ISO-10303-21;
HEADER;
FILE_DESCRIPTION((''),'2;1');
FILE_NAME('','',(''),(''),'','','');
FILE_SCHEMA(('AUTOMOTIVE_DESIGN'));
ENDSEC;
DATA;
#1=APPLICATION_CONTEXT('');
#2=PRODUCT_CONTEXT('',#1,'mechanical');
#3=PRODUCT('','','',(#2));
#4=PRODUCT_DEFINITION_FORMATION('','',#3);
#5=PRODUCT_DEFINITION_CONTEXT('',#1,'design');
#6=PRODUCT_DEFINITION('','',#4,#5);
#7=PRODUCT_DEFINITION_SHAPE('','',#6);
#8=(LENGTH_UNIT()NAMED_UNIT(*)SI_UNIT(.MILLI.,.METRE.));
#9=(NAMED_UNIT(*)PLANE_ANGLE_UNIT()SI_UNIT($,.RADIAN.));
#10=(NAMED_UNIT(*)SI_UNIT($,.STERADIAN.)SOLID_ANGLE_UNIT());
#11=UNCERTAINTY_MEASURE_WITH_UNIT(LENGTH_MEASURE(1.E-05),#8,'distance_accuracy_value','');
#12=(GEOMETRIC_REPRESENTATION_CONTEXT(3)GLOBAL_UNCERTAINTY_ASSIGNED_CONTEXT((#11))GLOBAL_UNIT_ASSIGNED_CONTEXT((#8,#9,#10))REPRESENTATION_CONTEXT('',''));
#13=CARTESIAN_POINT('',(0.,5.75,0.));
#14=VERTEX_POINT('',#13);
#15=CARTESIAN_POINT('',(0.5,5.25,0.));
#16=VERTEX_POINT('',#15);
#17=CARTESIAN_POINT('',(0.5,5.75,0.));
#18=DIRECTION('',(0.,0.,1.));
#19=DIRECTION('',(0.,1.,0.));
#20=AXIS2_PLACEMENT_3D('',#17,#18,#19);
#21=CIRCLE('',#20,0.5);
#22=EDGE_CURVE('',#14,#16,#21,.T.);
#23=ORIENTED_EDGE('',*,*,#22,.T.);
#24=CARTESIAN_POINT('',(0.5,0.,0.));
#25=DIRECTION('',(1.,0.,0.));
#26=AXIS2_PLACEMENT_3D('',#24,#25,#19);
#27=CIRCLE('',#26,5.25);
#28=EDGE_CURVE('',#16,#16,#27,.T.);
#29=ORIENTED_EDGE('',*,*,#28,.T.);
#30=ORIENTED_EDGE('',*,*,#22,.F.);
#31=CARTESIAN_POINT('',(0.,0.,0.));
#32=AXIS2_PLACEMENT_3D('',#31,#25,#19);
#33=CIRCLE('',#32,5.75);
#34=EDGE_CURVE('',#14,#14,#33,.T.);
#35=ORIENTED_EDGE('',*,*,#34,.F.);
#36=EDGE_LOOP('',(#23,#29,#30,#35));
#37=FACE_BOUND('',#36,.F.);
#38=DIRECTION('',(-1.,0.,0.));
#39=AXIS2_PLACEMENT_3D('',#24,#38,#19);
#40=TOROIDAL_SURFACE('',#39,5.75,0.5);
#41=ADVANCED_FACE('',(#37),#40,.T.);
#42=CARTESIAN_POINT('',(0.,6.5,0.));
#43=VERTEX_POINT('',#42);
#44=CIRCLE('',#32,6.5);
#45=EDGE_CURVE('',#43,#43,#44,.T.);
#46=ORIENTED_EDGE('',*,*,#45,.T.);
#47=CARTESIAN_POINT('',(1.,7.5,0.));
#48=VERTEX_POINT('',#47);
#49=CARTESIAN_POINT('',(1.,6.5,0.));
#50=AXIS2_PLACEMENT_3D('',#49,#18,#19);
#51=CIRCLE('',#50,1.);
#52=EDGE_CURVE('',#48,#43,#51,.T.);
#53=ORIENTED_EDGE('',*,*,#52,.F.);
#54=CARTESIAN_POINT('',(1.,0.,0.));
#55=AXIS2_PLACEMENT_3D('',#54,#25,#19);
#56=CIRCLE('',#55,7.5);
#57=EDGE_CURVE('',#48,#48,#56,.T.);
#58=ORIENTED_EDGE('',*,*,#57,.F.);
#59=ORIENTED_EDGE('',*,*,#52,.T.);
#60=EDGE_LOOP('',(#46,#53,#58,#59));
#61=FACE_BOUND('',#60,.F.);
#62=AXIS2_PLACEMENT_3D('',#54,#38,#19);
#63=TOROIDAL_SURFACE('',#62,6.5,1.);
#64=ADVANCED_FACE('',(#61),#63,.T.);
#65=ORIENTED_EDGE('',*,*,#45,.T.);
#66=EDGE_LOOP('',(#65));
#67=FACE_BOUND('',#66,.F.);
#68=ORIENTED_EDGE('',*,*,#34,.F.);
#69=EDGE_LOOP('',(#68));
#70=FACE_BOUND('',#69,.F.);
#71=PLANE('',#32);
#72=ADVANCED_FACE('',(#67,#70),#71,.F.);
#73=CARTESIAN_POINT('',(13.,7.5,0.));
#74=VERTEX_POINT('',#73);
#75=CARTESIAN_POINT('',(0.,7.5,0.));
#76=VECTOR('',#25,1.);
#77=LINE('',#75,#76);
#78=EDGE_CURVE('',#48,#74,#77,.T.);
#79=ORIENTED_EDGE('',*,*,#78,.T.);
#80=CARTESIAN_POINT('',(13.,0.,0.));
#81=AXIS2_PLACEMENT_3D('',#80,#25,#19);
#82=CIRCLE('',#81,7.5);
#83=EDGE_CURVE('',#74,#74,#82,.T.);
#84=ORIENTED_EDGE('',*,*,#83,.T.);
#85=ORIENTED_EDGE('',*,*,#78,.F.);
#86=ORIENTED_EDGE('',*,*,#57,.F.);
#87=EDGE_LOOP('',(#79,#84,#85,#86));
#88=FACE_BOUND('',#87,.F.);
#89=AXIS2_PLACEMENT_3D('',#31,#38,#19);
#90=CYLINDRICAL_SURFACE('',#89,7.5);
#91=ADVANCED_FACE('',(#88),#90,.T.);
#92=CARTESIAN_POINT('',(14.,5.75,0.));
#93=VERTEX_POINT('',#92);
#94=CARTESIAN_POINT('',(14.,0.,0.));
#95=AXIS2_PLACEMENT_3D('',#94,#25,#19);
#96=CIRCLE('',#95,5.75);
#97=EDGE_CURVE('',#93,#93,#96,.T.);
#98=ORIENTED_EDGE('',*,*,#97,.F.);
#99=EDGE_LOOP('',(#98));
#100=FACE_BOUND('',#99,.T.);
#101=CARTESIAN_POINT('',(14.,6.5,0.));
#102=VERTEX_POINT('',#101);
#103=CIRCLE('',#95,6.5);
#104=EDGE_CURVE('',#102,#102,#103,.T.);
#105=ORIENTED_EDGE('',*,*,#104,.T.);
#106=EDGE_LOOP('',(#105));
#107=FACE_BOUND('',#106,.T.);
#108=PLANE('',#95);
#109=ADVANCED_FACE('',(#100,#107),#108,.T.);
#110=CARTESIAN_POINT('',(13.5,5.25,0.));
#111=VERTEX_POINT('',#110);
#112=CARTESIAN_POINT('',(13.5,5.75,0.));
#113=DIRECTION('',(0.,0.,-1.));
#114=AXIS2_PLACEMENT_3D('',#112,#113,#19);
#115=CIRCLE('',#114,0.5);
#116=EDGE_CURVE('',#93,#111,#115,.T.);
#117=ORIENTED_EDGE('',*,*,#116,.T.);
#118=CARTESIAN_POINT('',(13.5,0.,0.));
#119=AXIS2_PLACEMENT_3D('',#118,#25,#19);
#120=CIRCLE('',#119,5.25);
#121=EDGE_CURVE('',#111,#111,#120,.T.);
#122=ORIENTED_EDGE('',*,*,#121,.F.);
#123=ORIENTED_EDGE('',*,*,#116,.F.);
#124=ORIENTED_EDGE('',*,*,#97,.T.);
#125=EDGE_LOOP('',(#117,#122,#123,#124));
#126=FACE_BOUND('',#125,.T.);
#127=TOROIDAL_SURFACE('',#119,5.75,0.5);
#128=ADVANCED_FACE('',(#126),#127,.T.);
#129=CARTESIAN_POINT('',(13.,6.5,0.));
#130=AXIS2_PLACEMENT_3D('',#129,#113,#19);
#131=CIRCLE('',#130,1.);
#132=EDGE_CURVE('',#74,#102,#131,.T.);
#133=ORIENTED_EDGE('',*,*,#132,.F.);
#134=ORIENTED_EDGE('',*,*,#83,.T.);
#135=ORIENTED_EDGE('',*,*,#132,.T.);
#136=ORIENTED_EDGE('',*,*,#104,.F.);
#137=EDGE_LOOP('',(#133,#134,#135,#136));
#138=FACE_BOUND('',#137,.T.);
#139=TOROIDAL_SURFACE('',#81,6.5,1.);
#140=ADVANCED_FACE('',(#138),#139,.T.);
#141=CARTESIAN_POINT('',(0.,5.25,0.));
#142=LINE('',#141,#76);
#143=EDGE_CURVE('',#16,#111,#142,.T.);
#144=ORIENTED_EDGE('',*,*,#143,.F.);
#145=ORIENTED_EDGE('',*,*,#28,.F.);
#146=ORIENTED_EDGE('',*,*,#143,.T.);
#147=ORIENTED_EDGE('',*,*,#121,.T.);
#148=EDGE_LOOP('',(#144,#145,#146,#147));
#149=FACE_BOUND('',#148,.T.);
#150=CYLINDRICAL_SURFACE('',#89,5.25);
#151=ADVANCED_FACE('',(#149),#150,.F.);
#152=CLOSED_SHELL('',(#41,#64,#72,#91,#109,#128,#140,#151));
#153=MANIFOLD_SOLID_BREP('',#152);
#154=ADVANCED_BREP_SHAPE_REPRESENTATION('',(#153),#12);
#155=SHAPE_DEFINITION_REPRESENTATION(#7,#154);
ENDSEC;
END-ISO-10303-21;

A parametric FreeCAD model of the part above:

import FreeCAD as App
import Part
import Sketcher

V = App.Vector
Q = App.Units.Quantity


def edges_at(feature, points):
    """Names of the edges that pass closest to the given points."""
    edges = feature.Shape.Edges
    near = lambda p: min(range(len(edges)), key=lambda i: edges[i].distToShape(Part.Vertex(*p))[0])
    return sorted({f"Edge{near(p) + 1}" for p in points})

doc = App.newDocument("Part")
params = doc.addObject("Spreadsheet::Sheet", "Params")
for row, (alias, value) in enumerate([
    ("sketch1_diameter", "15 mm"),
    ("sketch1_diameter2", "10.5 mm"),
    ("pad1_length", "14 mm"),
    ("fillet_radius", "1 mm"),
    ("fillet2_radius", "0.5 mm"),
], start=1):
    params.set(f"A{row}", alias)
    params.set(f"B{row}", "=" + value)
    params.setAlias(f"B{row}", alias)

body = doc.addObject("PartDesign::Body", "Body")

sketch1 = doc.addObject("Sketcher::SketchObject", "Sketch")
body.addObject(sketch1)
sketch1.AttachmentSupport = (doc.YZ_Plane, [""])
sketch1.MapMode = "FlatFace"
sketch1.addGeometry([
    Part.Circle(V(0, 0, 0), V(0, 0, 1), 7.5),
    Part.Circle(V(0, 0, 0), V(0, 0, 1), 5.25),
], False)
sketch1.addConstraint([
    Sketcher.Constraint("Coincident", 0, 3, -1, 1),
    Sketcher.Constraint("Coincident", 1, 3, -1, 1),
    Sketcher.Constraint("Diameter", 0, Q("15 mm")),
    Sketcher.Constraint("Diameter", 1, Q("10.5 mm")),
])
sketch1.setExpression("Constraints[2]", "Params.sketch1_diameter")
sketch1.setExpression("Constraints[3]", "Params.sketch1_diameter2")
pad1 = doc.addObject("PartDesign::Pad", "Pad")
body.addObject(pad1)
pad1.Profile = sketch1
pad1.setExpression("Length", "Params.pad1_length")
doc.recompute()

fillet = doc.addObject("PartDesign::Fillet", "Fillet")
body.addObject(fillet)
fillet.Base = (pad1, edges_at(pad1, [(0, -7.5, 0), (14, -7.5, 0)]))
fillet.setExpression("Radius", "Params.fillet_radius")
doc.recompute()

fillet2 = doc.addObject("PartDesign::Fillet", "Fillet001")
body.addObject(fillet2)
fillet2.Base = (fillet, edges_at(fillet, [(14, -5.25, 0), (7, 5.25, 0), (0, -5.25, 0)]))
fillet2.setExpression("Radius", "Params.fillet2_radius")

doc.recompute()
